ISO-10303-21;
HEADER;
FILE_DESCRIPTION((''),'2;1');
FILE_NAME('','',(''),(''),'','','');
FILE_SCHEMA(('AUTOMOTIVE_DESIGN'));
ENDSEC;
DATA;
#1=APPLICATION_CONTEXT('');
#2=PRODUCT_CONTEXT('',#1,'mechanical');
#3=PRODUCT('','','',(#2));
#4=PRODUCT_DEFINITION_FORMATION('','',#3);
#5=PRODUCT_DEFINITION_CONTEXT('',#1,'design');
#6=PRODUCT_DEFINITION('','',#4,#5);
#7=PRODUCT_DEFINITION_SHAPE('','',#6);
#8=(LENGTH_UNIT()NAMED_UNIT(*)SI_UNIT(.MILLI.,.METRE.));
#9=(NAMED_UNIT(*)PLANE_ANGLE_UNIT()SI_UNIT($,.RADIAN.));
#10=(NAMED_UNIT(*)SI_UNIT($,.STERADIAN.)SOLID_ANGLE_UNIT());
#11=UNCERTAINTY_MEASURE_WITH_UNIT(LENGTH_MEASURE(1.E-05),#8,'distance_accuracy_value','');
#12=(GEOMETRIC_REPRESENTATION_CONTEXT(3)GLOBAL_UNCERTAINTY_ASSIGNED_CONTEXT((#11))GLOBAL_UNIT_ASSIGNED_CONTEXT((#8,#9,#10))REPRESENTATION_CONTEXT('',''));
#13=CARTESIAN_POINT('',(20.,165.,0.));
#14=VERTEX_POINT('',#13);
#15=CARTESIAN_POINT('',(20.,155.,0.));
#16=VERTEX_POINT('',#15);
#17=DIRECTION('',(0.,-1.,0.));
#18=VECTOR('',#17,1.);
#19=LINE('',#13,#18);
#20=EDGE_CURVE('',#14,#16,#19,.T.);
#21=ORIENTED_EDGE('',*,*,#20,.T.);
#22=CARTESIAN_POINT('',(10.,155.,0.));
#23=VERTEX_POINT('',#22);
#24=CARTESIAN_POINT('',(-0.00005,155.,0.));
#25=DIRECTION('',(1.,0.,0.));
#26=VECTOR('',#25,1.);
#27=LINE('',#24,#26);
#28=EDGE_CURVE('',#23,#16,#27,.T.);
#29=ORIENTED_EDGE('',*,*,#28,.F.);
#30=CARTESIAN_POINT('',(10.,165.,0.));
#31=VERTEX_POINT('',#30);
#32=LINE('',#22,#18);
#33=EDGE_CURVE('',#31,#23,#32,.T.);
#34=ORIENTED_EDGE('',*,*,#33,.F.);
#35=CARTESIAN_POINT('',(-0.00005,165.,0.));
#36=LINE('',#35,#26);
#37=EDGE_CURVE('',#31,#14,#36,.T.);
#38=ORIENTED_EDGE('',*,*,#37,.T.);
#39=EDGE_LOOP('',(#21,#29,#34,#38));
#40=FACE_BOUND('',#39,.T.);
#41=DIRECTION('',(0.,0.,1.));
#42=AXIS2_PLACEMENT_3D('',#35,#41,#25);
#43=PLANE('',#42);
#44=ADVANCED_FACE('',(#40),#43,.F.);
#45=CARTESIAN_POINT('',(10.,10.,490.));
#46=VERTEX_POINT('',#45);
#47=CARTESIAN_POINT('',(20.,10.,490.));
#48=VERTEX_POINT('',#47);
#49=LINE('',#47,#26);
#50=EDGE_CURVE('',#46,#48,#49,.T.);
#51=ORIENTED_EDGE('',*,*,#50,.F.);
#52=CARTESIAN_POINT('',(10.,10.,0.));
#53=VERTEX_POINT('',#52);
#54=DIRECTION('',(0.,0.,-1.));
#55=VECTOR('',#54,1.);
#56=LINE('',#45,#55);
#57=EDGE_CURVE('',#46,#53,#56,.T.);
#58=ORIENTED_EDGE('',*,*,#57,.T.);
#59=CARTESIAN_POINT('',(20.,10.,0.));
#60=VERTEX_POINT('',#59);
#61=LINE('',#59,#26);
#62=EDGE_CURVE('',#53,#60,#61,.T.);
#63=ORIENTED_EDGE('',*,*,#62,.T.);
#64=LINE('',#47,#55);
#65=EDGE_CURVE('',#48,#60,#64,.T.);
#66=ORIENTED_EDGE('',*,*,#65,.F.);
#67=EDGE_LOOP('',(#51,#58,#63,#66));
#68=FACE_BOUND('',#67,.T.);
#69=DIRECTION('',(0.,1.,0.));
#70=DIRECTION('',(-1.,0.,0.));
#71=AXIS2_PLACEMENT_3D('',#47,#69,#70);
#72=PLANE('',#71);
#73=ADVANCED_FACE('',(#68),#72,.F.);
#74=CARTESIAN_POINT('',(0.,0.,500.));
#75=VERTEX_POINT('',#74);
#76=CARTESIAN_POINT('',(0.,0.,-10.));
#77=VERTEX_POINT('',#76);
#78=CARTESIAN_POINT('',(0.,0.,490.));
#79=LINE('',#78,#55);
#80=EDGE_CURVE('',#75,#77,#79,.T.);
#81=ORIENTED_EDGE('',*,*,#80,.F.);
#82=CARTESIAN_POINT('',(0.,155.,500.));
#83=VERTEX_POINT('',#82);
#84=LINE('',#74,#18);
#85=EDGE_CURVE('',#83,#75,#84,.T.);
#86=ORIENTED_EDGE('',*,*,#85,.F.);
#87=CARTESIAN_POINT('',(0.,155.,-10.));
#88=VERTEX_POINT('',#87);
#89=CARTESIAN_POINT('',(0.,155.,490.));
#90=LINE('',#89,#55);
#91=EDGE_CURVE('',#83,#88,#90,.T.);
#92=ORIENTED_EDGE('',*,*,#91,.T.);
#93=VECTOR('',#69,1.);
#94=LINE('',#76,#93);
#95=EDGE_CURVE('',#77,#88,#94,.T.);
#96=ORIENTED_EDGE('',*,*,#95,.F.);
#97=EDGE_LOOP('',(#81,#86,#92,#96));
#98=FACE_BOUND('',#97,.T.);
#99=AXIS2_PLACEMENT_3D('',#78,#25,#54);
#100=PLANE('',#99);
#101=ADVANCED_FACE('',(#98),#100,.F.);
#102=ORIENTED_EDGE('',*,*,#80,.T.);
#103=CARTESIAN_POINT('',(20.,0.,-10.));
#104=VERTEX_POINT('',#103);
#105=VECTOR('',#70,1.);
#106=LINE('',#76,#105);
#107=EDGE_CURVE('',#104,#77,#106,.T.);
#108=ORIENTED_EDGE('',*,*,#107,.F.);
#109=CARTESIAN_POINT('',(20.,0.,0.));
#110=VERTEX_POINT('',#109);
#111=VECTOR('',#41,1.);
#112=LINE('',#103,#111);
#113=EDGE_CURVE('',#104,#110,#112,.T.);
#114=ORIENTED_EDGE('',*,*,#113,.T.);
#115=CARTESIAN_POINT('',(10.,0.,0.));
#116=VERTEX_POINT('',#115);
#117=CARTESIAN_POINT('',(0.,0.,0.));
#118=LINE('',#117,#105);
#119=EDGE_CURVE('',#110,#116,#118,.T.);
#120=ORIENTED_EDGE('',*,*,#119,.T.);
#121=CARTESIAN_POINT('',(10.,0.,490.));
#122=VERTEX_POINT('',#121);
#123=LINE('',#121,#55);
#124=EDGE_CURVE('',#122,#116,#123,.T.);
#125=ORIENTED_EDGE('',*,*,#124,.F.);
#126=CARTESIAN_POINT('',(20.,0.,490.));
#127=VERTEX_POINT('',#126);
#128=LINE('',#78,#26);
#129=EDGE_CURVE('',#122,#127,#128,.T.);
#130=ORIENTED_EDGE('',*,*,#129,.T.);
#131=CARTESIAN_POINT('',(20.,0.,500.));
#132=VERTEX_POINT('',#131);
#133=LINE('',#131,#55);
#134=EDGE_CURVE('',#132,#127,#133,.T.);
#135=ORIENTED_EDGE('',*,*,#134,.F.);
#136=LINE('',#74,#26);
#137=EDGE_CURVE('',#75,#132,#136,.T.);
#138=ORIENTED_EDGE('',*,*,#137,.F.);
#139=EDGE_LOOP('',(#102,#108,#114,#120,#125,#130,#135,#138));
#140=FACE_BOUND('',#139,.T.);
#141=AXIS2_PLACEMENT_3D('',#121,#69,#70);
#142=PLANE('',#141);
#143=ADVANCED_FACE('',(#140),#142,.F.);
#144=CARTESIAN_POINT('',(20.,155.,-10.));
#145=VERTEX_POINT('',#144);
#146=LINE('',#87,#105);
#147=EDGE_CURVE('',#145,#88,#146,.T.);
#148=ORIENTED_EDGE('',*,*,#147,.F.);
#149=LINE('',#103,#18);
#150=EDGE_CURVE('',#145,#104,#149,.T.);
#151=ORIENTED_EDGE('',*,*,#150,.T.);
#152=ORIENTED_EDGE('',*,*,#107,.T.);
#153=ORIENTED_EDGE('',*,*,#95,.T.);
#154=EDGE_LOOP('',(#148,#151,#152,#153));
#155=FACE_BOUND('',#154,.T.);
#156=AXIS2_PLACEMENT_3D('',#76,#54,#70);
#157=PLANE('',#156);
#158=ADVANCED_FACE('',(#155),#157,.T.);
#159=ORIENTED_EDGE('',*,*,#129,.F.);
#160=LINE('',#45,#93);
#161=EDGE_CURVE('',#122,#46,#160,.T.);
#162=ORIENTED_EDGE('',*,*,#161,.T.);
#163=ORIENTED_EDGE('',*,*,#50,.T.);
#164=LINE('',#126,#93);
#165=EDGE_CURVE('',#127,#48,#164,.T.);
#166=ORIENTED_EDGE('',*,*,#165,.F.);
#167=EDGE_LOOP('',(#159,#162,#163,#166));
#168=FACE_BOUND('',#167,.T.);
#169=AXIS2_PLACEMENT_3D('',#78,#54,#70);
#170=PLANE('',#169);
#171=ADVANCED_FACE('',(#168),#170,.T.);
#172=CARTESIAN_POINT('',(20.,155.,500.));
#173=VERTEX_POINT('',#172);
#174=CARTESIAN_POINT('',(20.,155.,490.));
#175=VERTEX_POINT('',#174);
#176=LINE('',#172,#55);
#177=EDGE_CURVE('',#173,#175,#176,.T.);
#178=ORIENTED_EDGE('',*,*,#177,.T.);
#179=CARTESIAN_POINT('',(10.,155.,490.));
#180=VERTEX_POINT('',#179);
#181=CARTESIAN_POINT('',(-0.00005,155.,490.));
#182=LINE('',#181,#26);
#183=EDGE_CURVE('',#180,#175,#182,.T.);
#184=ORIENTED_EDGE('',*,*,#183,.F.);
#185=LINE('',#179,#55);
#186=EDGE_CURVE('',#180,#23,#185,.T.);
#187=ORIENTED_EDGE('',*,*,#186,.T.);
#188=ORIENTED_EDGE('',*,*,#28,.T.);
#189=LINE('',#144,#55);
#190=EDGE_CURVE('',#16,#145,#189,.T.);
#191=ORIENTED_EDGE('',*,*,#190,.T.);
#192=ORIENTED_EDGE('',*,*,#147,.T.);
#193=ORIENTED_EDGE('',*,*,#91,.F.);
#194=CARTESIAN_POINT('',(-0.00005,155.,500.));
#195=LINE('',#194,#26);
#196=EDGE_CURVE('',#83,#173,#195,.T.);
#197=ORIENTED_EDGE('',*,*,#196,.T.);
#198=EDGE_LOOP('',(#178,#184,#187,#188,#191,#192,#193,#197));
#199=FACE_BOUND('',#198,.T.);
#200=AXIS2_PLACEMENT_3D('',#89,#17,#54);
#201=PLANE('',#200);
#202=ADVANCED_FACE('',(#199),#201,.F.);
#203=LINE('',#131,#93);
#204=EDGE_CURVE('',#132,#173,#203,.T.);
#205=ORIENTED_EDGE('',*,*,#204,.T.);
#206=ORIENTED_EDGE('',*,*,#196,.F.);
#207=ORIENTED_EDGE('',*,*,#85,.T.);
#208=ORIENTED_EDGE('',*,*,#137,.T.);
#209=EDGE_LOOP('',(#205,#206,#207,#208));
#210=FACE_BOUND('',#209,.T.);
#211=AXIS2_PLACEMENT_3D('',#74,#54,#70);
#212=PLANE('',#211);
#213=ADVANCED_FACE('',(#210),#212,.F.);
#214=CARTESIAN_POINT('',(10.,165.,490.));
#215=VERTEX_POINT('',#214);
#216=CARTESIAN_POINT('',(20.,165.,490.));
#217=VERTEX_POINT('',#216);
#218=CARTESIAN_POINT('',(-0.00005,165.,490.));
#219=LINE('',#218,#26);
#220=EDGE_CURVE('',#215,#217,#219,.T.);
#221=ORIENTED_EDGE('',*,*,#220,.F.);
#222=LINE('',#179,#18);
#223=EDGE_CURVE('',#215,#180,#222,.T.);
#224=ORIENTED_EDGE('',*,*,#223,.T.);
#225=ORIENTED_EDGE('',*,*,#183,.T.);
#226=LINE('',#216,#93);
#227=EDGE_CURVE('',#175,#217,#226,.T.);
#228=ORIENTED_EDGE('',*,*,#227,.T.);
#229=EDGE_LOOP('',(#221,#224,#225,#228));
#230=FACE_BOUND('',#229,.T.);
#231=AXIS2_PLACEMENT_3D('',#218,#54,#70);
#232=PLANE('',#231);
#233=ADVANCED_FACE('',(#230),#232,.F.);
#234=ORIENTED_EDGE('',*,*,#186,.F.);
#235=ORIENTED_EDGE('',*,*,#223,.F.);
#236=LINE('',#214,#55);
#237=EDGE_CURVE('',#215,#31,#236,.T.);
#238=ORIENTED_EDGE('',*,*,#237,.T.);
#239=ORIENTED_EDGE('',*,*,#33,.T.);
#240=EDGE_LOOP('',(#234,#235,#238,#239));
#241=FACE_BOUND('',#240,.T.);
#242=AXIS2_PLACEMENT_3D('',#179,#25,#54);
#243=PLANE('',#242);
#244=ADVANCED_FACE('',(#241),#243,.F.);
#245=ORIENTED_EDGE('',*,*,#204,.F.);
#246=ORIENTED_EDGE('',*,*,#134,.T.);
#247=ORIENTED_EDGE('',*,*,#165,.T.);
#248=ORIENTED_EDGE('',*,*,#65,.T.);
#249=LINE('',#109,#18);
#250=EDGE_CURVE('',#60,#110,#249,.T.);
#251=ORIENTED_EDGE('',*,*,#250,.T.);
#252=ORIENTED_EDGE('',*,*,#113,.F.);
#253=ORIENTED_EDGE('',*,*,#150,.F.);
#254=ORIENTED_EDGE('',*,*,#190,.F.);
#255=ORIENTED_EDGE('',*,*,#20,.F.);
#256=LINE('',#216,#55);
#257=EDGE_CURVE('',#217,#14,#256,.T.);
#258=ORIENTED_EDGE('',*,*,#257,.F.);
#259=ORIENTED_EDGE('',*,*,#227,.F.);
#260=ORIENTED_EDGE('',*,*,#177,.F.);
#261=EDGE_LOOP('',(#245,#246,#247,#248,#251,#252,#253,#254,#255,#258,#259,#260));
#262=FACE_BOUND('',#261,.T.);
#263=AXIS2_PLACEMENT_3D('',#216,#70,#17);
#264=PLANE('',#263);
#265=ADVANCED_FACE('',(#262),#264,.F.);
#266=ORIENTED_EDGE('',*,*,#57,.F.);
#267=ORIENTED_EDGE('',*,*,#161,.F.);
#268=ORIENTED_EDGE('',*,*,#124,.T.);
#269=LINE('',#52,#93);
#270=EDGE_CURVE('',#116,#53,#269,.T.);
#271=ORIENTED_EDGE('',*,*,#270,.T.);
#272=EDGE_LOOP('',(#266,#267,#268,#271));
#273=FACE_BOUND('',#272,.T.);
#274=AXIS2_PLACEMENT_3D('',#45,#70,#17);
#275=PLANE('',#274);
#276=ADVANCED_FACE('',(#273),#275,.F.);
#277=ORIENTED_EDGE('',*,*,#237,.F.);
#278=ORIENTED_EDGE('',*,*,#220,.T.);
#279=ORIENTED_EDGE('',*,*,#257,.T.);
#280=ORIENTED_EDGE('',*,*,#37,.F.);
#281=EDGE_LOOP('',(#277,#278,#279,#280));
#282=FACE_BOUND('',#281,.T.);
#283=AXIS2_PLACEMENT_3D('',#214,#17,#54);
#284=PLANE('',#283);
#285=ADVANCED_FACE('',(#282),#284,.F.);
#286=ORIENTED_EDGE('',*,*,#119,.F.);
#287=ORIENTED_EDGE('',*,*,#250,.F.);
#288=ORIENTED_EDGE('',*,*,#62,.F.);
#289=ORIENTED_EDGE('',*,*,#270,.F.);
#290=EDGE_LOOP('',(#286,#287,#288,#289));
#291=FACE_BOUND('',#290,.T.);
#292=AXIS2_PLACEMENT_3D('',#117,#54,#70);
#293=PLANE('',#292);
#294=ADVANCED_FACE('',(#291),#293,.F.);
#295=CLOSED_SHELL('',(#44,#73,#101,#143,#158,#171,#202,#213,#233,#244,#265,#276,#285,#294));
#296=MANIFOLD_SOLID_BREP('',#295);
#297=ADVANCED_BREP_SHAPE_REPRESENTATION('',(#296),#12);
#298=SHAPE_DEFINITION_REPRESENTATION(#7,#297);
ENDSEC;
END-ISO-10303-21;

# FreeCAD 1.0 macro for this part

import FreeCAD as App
import Part
import Sketcher

V = App.Vector
Q = App.Units.Quantity


def add_polygon(sketch, points):
    """Adds a closed chain of lines whose ends are joined by coincident constraints."""
    first, n = sketch.GeometryCount, len(points)
    for a, b in zip(points, points[1:] + points[:1]):
        sketch.addGeometry(Part.LineSegment(App.Vector(*a, 0), App.Vector(*b, 0)), False)
    for i in range(n):
        sketch.addConstraint(Sketcher.Constraint("Coincident", first + i, 2, first + (i + 1) % n, 1))

doc = App.newDocument("Part")
body = doc.addObject("PartDesign::Body", "Body")

# Sketch on XY plane
sketch1 = body.newObject("Sketcher::SketchObject", "Sketch")
sketch1.AttachmentSupport = (doc.getObject("XY_Plane"), [""])
sketch1.MapMode = "FlatFace"
add_polygon(sketch1, [(0, 155), (0, 0), (10, 0), (10, 10), (20, 10), (20, 165), (10, 165), (10, 155)])  # lines 0-7
sketch1.addConstraint(Sketcher.Constraint("Vertical", 0))
sketch1.addConstraint(Sketcher.Constraint("Horizontal", 1))
sketch1.addConstraint(Sketcher.Constraint("Vertical", 2))
sketch1.addConstraint(Sketcher.Constraint("Horizontal", 3))
sketch1.addConstraint(Sketcher.Constraint("Vertical", 4))
sketch1.addConstraint(Sketcher.Constraint("Horizontal", 5))
sketch1.addConstraint(Sketcher.Constraint("Vertical", 6))
sketch1.addConstraint(Sketcher.Constraint("Horizontal", 7))
sketch1.addConstraint(Sketcher.Constraint("Coincident", 0, 2, -1, 1))
sketch1.addConstraint(Sketcher.Constraint("Vertical", 2, 2, 5, 2))
sketch1.addConstraint(Sketcher.Constraint("Equal", 1, 3))
sketch1.addConstraint(Sketcher.Constraint("Equal", 7, 2))
sketch1.addConstraint(Sketcher.Constraint("Equal", 0, 4))
sketch1.addConstraint(Sketcher.Constraint("DistanceX", 1, 1, 1, 2, Q("10 mm")))
sketch1.addConstraint(Sketcher.Constraint("DistanceY", 0, 2, 0, 1, Q("155 mm")))
pad1 = body.newObject("PartDesign::Pad", "Pad")
pad1.Profile = sketch1
pad1.Length = 490

# Sketch on XY plane
sketch2 = body.newObject("Sketcher::SketchObject", "Sketch001")
sketch2.AttachmentSupport = (doc.getObject("XY_Plane"), [""])
sketch2.MapMode = "FlatFace"
sketch2.AttachmentOffset = App.Placement(V(0, 0, 490), App.Rotation())
add_polygon(sketch2, [(0, 165), (0, 0), (20, 0), (20, 165)])  # lines 0-3
sketch2.addConstraint(Sketcher.Constraint("Vertical", 0))
sketch2.addConstraint(Sketcher.Constraint("Horizontal", 1))
sketch2.addConstraint(Sketcher.Constraint("Vertical", 2))
sketch2.addConstraint(Sketcher.Constraint("Horizontal", 3))
sketch2.addConstraint(Sketcher.Constraint("Coincident", 0, 2, -1, 1))
sketch2.addConstraint(Sketcher.Constraint("DistanceX", 1, 1, 1, 2, Q("20 mm")))
sketch2.addConstraint(Sketcher.Constraint("DistanceY", 0, 2, 0, 1, Q("165 mm")))
pad2 = body.newObject("PartDesign::Pad", "Pad001")
pad2.Profile = sketch2
pad2.Length = 10

# Sketch on XY plane
sketch3 = body.newObject("Sketcher::SketchObject", "Sketch002")
sketch3.AttachmentSupport = (doc.getObject("XY_Plane"), [""])
sketch3.MapMode = "FlatFace"
add_polygon(sketch3, [(20, 165), (20, 0), (0, 0), (0, 165)])  # lines 0-3
sketch3.addConstraint(Sketcher.Constraint("Vertical", 0))
sketch3.addConstraint(Sketcher.Constraint("Horizontal", 1))
sketch3.addConstraint(Sketcher.Constraint("Vertical", 2))
sketch3.addConstraint(Sketcher.Constraint("Horizontal", 3))
sketch3.addConstraint(Sketcher.Constraint("Coincident", 1, 2, -1, 1))
sketch3.addConstraint(Sketcher.Constraint("DistanceX", 1, 2, 1, 1, Q("20 mm")))
sketch3.addConstraint(Sketcher.Constraint("DistanceY", 0, 2, 0, 1, Q("165 mm")))
pad3 = body.newObject("PartDesign::Pad", "Pad002")
pad3.Profile = sketch3
pad3.Length = 10
pad3.Reversed = True

# Sketch on YZ plane
sketch4 = body.newObject("Sketcher::SketchObject", "Sketch003")
sketch4.AttachmentSupport = (doc.getObject("YZ_Plane"), [""])
sketch4.MapMode = "FlatFace"
sketch4.AttachmentOffset = App.Placement(V(0, 0, 20), App.Rotation())
add_polygon(sketch4, [(165, 500), (155, 500), (155, 490), (165, 490)])  # lines 0-3
add_polygon(sketch4, [(165, 0), (155, 0), (155, -10), (165, -10)])  # lines 4-7
sketch4.addConstraint(Sketcher.Constraint("Horizontal", 0))
sketch4.addConstraint(Sketcher.Constraint("Vertical", 1))
sketch4.addConstraint(Sketcher.Constraint("Horizontal", 2))
sketch4.addConstraint(Sketcher.Constraint("Vertical", 3))
sketch4.addConstraint(Sketcher.Constraint("Horizontal", 4))
sketch4.addConstraint(Sketcher.Constraint("Vertical", 5))
sketch4.addConstraint(Sketcher.Constraint("Horizontal", 6))
sketch4.addConstraint(Sketcher.Constraint("Vertical", 7))
sketch4.addConstraint(Sketcher.Constraint("PointOnObject", 4, 2, -1))
sketch4.addConstraint(Sketcher.Constraint("Vertical", 1, 2, 4, 2))
sketch4.addConstraint(Sketcher.Constraint("Vertical", 3, 2, 6, 2))
sketch4.addConstraint(Sketcher.Constraint("Equal", 6, 1))
sketch4.addConstraint(Sketcher.Constraint("Equal", 3, 5))
sketch4.addConstraint(Sketcher.Constraint("DistanceX", 0, 2, 0, 1, Q("10 mm")))
sketch4.addConstraint(Sketcher.Constraint("DistanceX", -1, 1, 0, 2, Q("155 mm")))
sketch4.addConstraint(Sketcher.Constraint("DistanceY", -1, 1, 0, 2, Q("500 mm")))
pocket1 = body.newObject("PartDesign::Pocket", "Pocket")
pocket1.Profile = sketch4
pocket1.Type = "ThroughAll"

doc.recompute()
